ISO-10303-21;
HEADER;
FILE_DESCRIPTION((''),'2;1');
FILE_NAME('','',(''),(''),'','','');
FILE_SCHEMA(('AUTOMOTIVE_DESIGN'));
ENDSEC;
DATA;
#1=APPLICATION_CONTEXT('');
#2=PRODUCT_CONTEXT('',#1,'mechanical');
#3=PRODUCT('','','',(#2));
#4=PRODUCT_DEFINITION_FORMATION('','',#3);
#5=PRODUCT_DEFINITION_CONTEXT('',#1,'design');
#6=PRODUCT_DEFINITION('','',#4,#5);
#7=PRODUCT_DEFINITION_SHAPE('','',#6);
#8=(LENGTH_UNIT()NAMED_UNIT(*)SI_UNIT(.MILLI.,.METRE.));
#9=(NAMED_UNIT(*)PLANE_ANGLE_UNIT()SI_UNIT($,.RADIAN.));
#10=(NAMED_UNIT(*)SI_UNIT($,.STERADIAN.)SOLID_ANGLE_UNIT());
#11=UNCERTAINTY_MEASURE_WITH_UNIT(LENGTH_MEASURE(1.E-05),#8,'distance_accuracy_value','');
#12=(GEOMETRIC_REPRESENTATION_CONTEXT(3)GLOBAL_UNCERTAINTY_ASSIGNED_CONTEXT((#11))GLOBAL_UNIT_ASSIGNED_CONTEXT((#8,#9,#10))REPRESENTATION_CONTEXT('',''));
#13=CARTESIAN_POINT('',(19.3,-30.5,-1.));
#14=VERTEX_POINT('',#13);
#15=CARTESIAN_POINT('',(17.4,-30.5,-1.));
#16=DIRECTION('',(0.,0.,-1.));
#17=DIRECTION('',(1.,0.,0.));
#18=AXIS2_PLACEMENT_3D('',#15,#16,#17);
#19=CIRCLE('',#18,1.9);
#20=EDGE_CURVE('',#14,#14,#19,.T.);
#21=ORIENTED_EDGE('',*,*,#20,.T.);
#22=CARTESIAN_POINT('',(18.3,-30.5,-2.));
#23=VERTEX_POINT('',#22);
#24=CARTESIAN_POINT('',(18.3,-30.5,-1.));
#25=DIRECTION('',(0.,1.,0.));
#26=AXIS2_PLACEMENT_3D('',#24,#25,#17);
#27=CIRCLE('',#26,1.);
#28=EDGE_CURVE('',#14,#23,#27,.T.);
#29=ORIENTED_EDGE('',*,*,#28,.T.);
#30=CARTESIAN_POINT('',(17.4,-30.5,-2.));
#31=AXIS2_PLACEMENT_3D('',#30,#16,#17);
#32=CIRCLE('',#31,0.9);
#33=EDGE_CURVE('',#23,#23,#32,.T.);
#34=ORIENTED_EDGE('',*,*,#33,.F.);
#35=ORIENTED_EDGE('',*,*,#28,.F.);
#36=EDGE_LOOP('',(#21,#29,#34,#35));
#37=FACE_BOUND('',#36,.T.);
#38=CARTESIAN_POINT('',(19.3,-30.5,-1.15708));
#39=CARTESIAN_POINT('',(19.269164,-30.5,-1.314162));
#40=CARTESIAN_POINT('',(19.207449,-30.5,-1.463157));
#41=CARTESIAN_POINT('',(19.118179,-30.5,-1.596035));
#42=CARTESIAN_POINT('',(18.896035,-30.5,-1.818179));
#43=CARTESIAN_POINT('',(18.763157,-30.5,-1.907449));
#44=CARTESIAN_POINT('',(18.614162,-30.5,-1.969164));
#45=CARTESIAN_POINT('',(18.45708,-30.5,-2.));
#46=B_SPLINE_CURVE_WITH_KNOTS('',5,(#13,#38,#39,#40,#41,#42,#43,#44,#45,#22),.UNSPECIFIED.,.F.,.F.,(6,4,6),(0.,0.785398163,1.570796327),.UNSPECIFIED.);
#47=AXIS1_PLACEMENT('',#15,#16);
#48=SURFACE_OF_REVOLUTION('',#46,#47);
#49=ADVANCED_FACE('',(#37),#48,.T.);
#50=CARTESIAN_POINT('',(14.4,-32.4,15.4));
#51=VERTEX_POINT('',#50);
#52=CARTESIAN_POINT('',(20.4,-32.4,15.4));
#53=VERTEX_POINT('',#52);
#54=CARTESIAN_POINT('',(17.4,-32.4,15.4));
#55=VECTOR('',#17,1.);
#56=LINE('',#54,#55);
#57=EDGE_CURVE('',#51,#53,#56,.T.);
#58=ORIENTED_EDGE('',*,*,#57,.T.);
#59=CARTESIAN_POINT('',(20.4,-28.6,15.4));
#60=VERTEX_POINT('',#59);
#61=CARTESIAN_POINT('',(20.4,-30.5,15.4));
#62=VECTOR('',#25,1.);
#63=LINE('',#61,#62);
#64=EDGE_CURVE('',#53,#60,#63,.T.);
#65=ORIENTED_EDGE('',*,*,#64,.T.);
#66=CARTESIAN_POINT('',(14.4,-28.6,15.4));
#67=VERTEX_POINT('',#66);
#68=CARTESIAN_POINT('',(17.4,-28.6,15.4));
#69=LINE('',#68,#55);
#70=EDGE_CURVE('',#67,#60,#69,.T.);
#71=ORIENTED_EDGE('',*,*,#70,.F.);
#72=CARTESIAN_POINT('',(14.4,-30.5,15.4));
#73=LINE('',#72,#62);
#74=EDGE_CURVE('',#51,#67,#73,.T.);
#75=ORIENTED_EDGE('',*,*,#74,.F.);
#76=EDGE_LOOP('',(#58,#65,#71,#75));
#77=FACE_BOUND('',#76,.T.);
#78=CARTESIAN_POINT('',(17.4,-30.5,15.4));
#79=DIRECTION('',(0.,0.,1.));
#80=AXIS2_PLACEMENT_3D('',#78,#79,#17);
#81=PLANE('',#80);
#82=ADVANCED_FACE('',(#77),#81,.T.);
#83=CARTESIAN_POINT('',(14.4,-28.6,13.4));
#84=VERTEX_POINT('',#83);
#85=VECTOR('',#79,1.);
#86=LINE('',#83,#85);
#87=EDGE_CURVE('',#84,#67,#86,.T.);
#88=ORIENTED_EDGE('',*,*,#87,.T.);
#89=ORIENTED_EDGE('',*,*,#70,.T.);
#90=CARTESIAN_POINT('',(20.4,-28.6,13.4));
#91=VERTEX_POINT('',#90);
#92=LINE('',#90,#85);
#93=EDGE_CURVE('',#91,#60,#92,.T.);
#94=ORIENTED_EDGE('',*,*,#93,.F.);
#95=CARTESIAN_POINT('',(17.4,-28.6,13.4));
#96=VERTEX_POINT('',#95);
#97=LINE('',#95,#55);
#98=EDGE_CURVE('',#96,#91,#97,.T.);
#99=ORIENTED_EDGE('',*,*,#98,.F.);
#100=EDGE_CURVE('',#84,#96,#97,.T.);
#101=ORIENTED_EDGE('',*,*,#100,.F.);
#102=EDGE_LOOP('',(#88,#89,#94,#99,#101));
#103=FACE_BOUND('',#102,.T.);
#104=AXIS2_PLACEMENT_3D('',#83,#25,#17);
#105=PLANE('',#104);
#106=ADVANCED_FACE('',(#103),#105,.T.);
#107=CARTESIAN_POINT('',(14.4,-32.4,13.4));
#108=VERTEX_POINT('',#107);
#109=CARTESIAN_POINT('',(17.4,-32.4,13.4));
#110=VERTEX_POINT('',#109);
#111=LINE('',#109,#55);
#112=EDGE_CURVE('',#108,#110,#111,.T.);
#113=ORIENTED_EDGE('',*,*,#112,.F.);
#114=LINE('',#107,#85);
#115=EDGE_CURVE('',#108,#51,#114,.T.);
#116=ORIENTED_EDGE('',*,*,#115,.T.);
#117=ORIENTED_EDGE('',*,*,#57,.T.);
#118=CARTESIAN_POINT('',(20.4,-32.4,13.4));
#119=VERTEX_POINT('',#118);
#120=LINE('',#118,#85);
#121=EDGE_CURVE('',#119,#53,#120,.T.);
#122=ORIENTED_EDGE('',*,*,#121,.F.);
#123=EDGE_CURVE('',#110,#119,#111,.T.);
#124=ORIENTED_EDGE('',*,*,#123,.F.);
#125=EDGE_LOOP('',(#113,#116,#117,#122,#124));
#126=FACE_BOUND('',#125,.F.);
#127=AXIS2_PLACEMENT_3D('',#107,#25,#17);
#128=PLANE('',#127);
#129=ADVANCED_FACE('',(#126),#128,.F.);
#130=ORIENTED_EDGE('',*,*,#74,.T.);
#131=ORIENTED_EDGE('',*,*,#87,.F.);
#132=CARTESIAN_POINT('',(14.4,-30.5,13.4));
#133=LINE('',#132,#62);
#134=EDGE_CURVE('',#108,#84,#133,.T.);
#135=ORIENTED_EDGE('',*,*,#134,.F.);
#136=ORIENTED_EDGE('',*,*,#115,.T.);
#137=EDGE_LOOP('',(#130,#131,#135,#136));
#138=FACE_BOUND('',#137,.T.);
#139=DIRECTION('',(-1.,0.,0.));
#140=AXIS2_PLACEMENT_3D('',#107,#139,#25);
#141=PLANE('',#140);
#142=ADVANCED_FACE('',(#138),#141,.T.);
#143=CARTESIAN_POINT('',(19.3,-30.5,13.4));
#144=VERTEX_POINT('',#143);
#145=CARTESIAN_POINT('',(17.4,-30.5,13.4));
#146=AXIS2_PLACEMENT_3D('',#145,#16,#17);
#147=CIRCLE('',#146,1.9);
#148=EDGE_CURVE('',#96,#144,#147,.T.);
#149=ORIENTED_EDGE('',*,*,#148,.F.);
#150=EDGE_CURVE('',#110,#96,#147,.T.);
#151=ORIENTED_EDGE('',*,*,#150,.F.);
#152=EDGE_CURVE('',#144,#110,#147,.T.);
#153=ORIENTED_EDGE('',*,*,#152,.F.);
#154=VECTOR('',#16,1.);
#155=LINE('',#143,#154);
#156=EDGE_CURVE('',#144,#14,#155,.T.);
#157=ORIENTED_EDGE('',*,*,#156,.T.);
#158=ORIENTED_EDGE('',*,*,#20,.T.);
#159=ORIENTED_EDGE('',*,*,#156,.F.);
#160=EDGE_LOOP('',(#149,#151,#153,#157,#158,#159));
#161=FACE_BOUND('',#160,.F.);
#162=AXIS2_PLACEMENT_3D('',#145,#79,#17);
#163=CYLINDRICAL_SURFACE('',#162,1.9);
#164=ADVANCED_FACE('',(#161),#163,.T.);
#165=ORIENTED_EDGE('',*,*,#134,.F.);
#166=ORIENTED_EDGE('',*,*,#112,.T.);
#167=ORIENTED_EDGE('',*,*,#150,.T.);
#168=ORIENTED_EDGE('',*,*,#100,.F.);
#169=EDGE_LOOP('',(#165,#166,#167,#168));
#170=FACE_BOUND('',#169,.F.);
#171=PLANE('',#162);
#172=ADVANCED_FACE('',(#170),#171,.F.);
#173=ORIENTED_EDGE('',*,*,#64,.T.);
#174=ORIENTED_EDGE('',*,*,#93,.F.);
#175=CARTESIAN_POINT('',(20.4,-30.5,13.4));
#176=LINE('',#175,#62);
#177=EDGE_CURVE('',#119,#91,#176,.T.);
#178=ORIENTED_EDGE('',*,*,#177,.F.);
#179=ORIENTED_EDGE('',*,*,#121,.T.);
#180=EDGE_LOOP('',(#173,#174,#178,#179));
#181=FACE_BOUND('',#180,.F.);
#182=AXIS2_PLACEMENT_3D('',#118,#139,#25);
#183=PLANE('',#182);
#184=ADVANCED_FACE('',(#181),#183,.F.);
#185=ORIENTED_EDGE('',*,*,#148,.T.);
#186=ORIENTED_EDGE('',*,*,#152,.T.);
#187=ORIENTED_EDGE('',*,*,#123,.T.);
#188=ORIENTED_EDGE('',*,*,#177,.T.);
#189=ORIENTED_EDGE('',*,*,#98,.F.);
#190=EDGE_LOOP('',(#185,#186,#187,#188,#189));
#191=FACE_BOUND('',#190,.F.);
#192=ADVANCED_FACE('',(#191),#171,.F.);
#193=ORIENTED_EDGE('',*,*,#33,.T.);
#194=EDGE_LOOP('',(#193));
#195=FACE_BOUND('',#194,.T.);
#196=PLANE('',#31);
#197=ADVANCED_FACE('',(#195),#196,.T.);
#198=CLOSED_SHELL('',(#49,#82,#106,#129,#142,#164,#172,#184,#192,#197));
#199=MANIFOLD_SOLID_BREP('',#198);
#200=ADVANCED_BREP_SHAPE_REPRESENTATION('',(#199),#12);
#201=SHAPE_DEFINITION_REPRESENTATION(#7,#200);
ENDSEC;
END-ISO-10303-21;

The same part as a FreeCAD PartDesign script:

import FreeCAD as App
import Part
import Sketcher
from FreeCAD import Vector
Q = App.Units.Quantity


def edges_at(feature, points):
    """Names of the edges that pass closest to the given points."""
    edges = feature.Shape.Edges
    near = lambda p: min(range(len(edges)), key=lambda i: edges[i].distToShape(Part.Vertex(*p))[0])
    return sorted({f"Edge{near(p) + 1}" for p in points})

doc = App.newDocument("Part")
body = doc.addObject("PartDesign::Body", "Body")

sketch1 = body.newObject("Sketcher::SketchObject", "Sketch")
sketch1.AttachmentSupport = (doc.getObject("XY_Plane"), [""])
sketch1.MapMode = "FlatFace"
sketch1.AttachmentOffset = App.Placement(Vector(0, 0, 13.4), App.Rotation())
sketch1.addGeometry(Part.LineSegment(Vector(14.4, -28.6, 0), Vector(14.4, -32.4, 0)), False)
sketch1.addGeometry(Part.LineSegment(Vector(14.4, -32.4, 0), Vector(20.4, -32.4, 0)), False)
sketch1.addGeometry(Part.LineSegment(Vector(20.4, -32.4, 0), Vector(20.4, -28.6, 0)), False)
sketch1.addGeometry(Part.LineSegment(Vector(20.4, -28.6, 0), Vector(14.4, -28.6, 0)), False)
sketch1.addConstraint(Sketcher.Constraint("Coincident", 0, 2, 1, 1))
sketch1.addConstraint(Sketcher.Constraint("Coincident", 1, 2, 2, 1))
sketch1.addConstraint(Sketcher.Constraint("Coincident", 2, 2, 3, 1))
sketch1.addConstraint(Sketcher.Constraint("Coincident", 3, 2, 0, 1))
sketch1.addConstraint(Sketcher.Constraint("Vertical", 0))
sketch1.addConstraint(Sketcher.Constraint("Horizontal", 1))
sketch1.addConstraint(Sketcher.Constraint("Vertical", 2))
sketch1.addConstraint(Sketcher.Constraint("Horizontal", 3))
sketch1.addConstraint(Sketcher.Constraint("DistanceX", 1, 1, 1, 2, Q("6 mm")))
sketch1.addConstraint(Sketcher.Constraint("DistanceY", 0, 2, 0, 1, Q("3.8 mm")))
sketch1.addConstraint(Sketcher.Constraint("DistanceX", -1, 1, 0, 2, Q("14.4 mm")))
sketch1.addConstraint(Sketcher.Constraint("DistanceY", 0, 2, -1, 1, Q("32.4 mm")))
pad1 = body.newObject("PartDesign::Pad", "Pad")
pad1.Profile = sketch1
pad1.Length = 2

sketch2 = body.newObject("Sketcher::SketchObject", "Sketch001")
sketch2.AttachmentSupport = (doc.getObject("XY_Plane"), [""])
sketch2.MapMode = "FlatFace"
sketch2.AttachmentOffset = App.Placement(Vector(0, 0, 13.4), App.Rotation())
sketch2.addGeometry(Part.Circle(Vector(17.4, -30.5, 0), Vector(0, 0, 1), 1.9), False)
sketch2.addConstraint(Sketcher.Constraint("Diameter", 0, Q("3.8 mm")))
sketch2.addConstraint(Sketcher.Constraint("DistanceX", -1, 1, 0, 3, Q("17.4 mm")))
sketch2.addConstraint(Sketcher.Constraint("DistanceY", 0, 3, -1, 1, Q("30.5 mm")))
pad2 = body.newObject("PartDesign::Pad", "Pad001")
pad2.Profile = sketch2
pad2.Length = 15.4
pad2.Reversed = True
doc.recompute()

fillet = body.newObject("PartDesign::Fillet", "Fillet")
fillet.Base = (pad2, edges_at(pad2, [(15.5, -30.5, -2)]))
fillet.Radius = 1

doc.recompute()
